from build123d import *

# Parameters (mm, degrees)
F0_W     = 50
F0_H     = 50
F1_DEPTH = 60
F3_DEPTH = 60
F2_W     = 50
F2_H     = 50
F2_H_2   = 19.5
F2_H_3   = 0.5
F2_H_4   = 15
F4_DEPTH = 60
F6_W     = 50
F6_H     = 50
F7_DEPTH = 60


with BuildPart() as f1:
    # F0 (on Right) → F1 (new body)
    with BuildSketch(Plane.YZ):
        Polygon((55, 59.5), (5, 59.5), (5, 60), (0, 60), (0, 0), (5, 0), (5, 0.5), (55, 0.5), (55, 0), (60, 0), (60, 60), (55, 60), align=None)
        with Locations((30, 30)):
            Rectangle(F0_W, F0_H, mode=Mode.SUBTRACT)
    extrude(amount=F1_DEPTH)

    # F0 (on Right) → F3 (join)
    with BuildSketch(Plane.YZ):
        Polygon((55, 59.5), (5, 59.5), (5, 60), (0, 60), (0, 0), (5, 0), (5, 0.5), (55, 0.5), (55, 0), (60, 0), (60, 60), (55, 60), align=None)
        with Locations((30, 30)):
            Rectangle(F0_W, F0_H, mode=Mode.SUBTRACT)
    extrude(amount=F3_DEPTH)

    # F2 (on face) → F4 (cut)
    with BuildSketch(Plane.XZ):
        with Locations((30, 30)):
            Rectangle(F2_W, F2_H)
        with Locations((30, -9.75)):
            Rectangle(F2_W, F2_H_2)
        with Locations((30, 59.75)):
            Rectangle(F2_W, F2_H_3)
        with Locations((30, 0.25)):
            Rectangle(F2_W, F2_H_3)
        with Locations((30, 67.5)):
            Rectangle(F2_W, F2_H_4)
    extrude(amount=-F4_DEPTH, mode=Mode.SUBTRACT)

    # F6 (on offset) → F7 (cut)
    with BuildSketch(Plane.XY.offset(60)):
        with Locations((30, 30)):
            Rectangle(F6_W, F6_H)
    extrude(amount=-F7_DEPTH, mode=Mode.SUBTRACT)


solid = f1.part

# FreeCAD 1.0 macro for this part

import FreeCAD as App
import Part
import Sketcher


def add_polygon(sketch, points):
    """Adds a closed chain of lines whose ends are joined by coincident constraints."""
    first, n = sketch.GeometryCount, len(points)
    for a, b in zip(points, points[1:] + points[:1]):
        sketch.addGeometry(Part.LineSegment(App.Vector(*a, 0), App.Vector(*b, 0)), False)
    for i in range(n):
        sketch.addConstraint(Sketcher.Constraint("Coincident", first + i, 2, first + (i + 1) % n, 1))

doc = App.newDocument("Part")
body = doc.addObject("PartDesign::Body", "Body")

# Sketch on YZ plane
sketch1 = body.newObject("Sketcher::SketchObject", "Sketch")
sketch1.AttachmentSupport = (doc.getObject("YZ_Plane"), [""])
sketch1.MapMode = "FlatFace"
add_polygon(sketch1, [(55, 59.5), (5, 59.5), (5, 60), (0, 60), (0, 0), (5, 0), (5, 0.5), (55, 0.5), (55, 0), (60, 0), (60, 60), (55, 60)])  # lines 0-11
add_polygon(sketch1, [(55, 5), (5, 5), (5, 55), (55, 55)])  # lines 12-15
sketch1.addConstraint(Sketcher.Constraint("Horizontal", 0))
sketch1.addConstraint(Sketcher.Constraint("Vertical", 1))
sketch1.addConstraint(Sketcher.Constraint("Horizontal", 2))
sketch1.addConstraint(Sketcher.Constraint("Vertical", 3))
sketch1.addConstraint(Sketcher.Constraint("Horizontal", 4))
sketch1.addConstraint(Sketcher.Constraint("Vertical", 5))
sketch1.addConstraint(Sketcher.Constraint("Horizontal", 6))
sketch1.addConstraint(Sketcher.Constraint("Vertical", 7))
sketch1.addConstraint(Sketcher.Constraint("Horizontal", 8))
sketch1.addConstraint(Sketcher.Constraint("Vertical", 9))
sketch1.addConstraint(Sketcher.Constraint("Horizontal", 10))
sketch1.addConstraint(Sketcher.Constraint("Vertical", 11))
sketch1.addConstraint(Sketcher.Constraint("Horizontal", 12))
sketch1.addConstraint(Sketcher.Constraint("Vertical", 13))
sketch1.addConstraint(Sketcher.Constraint("Horizontal", 14))
sketch1.addConstraint(Sketcher.Constraint("Vertical", 15))
sketch1.addConstraint(Sketcher.Constraint("Coincident", 3, 2, -1, 1))
sketch1.addConstraint(Sketcher.Constraint("PointOnObject", 7, 2, -1))
sketch1.addConstraint(Sketcher.Constraint("Horizontal", 2, 2, 9, 2))
sketch1.addConstraint(Sketcher.Constraint("Vertical", 1, 2, 4, 2))
sketch1.addConstraint(Sketcher.Constraint("Vertical", 7, 2, 10, 2))
sketch1.addConstraint(Sketcher.Constraint("Vertical", 5, 2, 12, 2))
sketch1.addConstraint(Sketcher.Constraint("Vertical", 11, 2, 14, 2))
sketch1.addConstraint(Sketcher.Constraint("Equal", 4, 8))
sketch1.addConstraint(Sketcher.Constraint("Equal", 1, 5))
sketch1.addConstraint(Sketcher.Constraint("Equal", 14, 13))
sketch1.addConstraint(Sketcher.Constraint("DistanceX", 0, 2, 0, 1, 50.0))
sketch1.addConstraint(Sketcher.Constraint("DistanceX", 2, 2, 2, 1, 5.0))
sketch1.addConstraint(Sketcher.Constraint("DistanceY", 3, 2, 3, 1, 60.0))
sketch1.addConstraint(Sketcher.Constraint("DistanceY", 1, 1, 1, 2, 0.5))
sketch1.addConstraint(Sketcher.Constraint("DistanceY", -1, 1, 12, 2, 5.0))
pad1 = body.newObject("PartDesign::Pad", "Pad")
pad1.Profile = sketch1
pad1.Length = 60

# Sketch on YZ plane
sketch2 = body.newObject("Sketcher::SketchObject", "Sketch001")
sketch2.AttachmentSupport = (doc.getObject("YZ_Plane"), [""])
sketch2.MapMode = "FlatFace"
add_polygon(sketch2, [(55, 59.5), (5, 59.5), (5, 60), (0, 60), (0, 0), (5, 0), (5, 0.5), (55, 0.5), (55, 0), (60, 0), (60, 60), (55, 60)])  # lines 0-11
add_polygon(sketch2, [(55, 5), (5, 5), (5, 55), (55, 55)])  # lines 12-15
sketch2.addConstraint(Sketcher.Constraint("Horizontal", 0))
sketch2.addConstraint(Sketcher.Constraint("Vertical", 1))
sketch2.addConstraint(Sketcher.Constraint("Horizontal", 2))
sketch2.addConstraint(Sketcher.Constraint("Vertical", 3))
sketch2.addConstraint(Sketcher.Constraint("Horizontal", 4))
sketch2.addConstraint(Sketcher.Constraint("Vertical", 5))
sketch2.addConstraint(Sketcher.Constraint("Horizontal", 6))
sketch2.addConstraint(Sketcher.Constraint("Vertical", 7))
sketch2.addConstraint(Sketcher.Constraint("Horizontal", 8))
sketch2.addConstraint(Sketcher.Constraint("Vertical", 9))
sketch2.addConstraint(Sketcher.Constraint("Horizontal", 10))
sketch2.addConstraint(Sketcher.Constraint("Vertical", 11))
sketch2.addConstraint(Sketcher.Constraint("Horizontal", 12))
sketch2.addConstraint(Sketcher.Constraint("Vertical", 13))
sketch2.addConstraint(Sketcher.Constraint("Horizontal", 14))
sketch2.addConstraint(Sketcher.Constraint("Vertical", 15))
sketch2.addConstraint(Sketcher.Constraint("Coincident", 3, 2, -1, 1))
sketch2.addConstraint(Sketcher.Constraint("PointOnObject", 7, 2, -1))
sketch2.addConstraint(Sketcher.Constraint("Horizontal", 2, 2, 9, 2))
sketch2.addConstraint(Sketcher.Constraint("Vertical", 1, 2, 4, 2))
sketch2.addConstraint(Sketcher.Constraint("Vertical", 7, 2, 10, 2))
sketch2.addConstraint(Sketcher.Constraint("Vertical", 5, 2, 12, 2))
sketch2.addConstraint(Sketcher.Constraint("Vertical", 11, 2, 14, 2))
sketch2.addConstraint(Sketcher.Constraint("Equal", 4, 8))
sketch2.addConstraint(Sketcher.Constraint("Equal", 1, 5))
sketch2.addConstraint(Sketcher.Constraint("Equal", 14, 13))
sketch2.addConstraint(Sketcher.Constraint("DistanceX", 0, 2, 0, 1, 50.0))
sketch2.addConstraint(Sketcher.Constraint("DistanceX", 2, 2, 2, 1, 5.0))
sketch2.addConstraint(Sketcher.Constraint("DistanceY", 3, 2, 3, 1, 60.0))
sketch2.addConstraint(Sketcher.Constraint("DistanceY", 1, 1, 1, 2, 0.5))
sketch2.addConstraint(Sketcher.Constraint("DistanceY", -1, 1, 12, 2, 5.0))
pad2 = body.newObject("PartDesign::Pad", "Pad001")
pad2.Profile = sketch2
pad2.Length = 60

# Sketch on XZ plane
sketch3 = body.newObject("Sketcher::SketchObject", "Sketch002")
sketch3.AttachmentSupport = (doc.getObject("XZ_Plane"), [""])
sketch3.MapMode = "FlatFace"
add_polygon(sketch3, [(5, 55), (5, 5), (55, 5), (55, 55)])  # lines 0-3
add_polygon(sketch3, [(5, -20), (55, -20), (55, 0), (5, 0)])  # lines 4-7
add_polygon(sketch3, [(5, 60), (55, 60), (55, 75), (5, 75)])  # lines 8-11
sketch3.addConstraint(Sketcher.Constraint("Vertical", 0))
sketch3.addConstraint(Sketcher.Constraint("Horizontal", 1))
sketch3.addConstraint(Sketcher.Constraint("Vertical", 2))
sketch3.addConstraint(Sketcher.Constraint("Horizontal", 3))
sketch3.addConstraint(Sketcher.Constraint("Horizontal", 4))
sketch3.addConstraint(Sketcher.Constraint("Vertical", 5))
sketch3.addConstraint(Sketcher.Constraint("Horizontal", 6))
sketch3.addConstraint(Sketcher.Constraint("Vertical", 7))
sketch3.addConstraint(Sketcher.Constraint("Horizontal", 8))
sketch3.addConstraint(Sketcher.Constraint("Vertical", 9))
sketch3.addConstraint(Sketcher.Constraint("Horizontal", 10))
sketch3.addConstraint(Sketcher.Constraint("Vertical", 11))
sketch3.addConstraint(Sketcher.Constraint("Vertical", 2, 2, 4, 2))
sketch3.addConstraint(Sketcher.Constraint("Vertical", 3, 2, 6, 2))
sketch3.addConstraint(Sketcher.Constraint("Vertical", 5, 2, 8, 2))
sketch3.addConstraint(Sketcher.Constraint("Vertical", 7, 2, 10, 2))
sketch3.addConstraint(Sketcher.Constraint("Equal", 10, 0))
sketch3.addConstraint(Sketcher.Constraint("DistanceX", 1, 1, 1, 2, 50.0))
sketch3.addConstraint(Sketcher.Constraint("DistanceY", 5, 1, 5, 2, 20.0))
sketch3.addConstraint(Sketcher.Constraint("DistanceY", 9, 1, 9, 2, 15.5))
sketch3.addConstraint(Sketcher.Constraint("DistanceX", -1, 1, 0, 2, 5.0))
sketch3.addConstraint(Sketcher.Constraint("DistanceY", -1, 1, 0, 2, 5.0))
sketch3.addConstraint(Sketcher.Constraint("DistanceY", -1, 1, 9, 2, 75.0))
sketch3.addConstraint(Sketcher.Constraint("DistanceY", 5, 2, 8, 2, 59.0))
pocket1 = body.newObject("PartDesign::Pocket", "Pocket")
pocket1.Profile = sketch3
pocket1.Length = 60

# Sketch on XY plane
sketch4 = body.newObject("Sketcher::SketchObject", "Sketch003")
sketch4.AttachmentSupport = (doc.getObject("XY_Plane"), [""])
sketch4.MapMode = "FlatFace"
sketch4.AttachmentOffset = App.Placement(App.Vector(0, 0, 60), App.Rotation())
add_polygon(sketch4, [(5, 55), (5, 5), (55, 5), (55, 55)])  # lines 0-3
sketch4.addConstraint(Sketcher.Constraint("Vertical", 0))
sketch4.addConstraint(Sketcher.Constraint("Horizontal", 1))
sketch4.addConstraint(Sketcher.Constraint("Vertical", 2))
sketch4.addConstraint(Sketcher.Constraint("Horizontal", 3))
sketch4.addConstraint(Sketcher.Constraint("Equal", 3, 0))
sketch4.addConstraint(Sketcher.Constraint("DistanceX", 1, 1, 1, 2, 50.0))
sketch4.addConstraint(Sketcher.Constraint("DistanceX", -1, 1, 0, 2, 5.0))
sketch4.addConstraint(Sketcher.Constraint("DistanceY", -1, 1, 0, 2, 5.0))
pocket2 = body.newObject("PartDesign::Pocket", "Pocket001")
pocket2.Profile = sketch4
pocket2.Length = 60

doc.recompute()
